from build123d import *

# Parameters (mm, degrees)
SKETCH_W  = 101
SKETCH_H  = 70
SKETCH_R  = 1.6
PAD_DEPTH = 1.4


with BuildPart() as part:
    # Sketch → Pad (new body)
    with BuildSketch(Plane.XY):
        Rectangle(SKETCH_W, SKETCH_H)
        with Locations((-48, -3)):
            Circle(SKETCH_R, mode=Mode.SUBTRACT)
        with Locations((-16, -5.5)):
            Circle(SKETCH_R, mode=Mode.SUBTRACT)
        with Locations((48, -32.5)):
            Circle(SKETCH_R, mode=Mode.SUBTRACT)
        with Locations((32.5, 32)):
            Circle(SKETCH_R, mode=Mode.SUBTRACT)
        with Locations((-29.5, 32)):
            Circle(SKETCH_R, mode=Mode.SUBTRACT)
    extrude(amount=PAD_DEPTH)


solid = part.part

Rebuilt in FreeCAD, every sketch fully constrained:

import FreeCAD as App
import Part
import Sketcher


def add_polygon(sketch, points):
    """Adds a closed chain of lines whose ends are joined by coincident constraints."""
    first, n = sketch.GeometryCount, len(points)
    for a, b in zip(points, points[1:] + points[:1]):
        sketch.addGeometry(Part.LineSegment(App.Vector(*a, 0), App.Vector(*b, 0)), False)
    for i in range(n):
        sketch.addConstraint(Sketcher.Constraint("Coincident", first + i, 2, first + (i + 1) % n, 1))

doc = App.newDocument("Part")
body = doc.addObject("PartDesign::Body", "Body")

# Sketch on XY plane
sketch1 = body.newObject("Sketcher::SketchObject", "Sketch")
sketch1.AttachmentSupport = (doc.getObject("XY_Plane"), [""])
sketch1.MapMode = "FlatFace"
add_polygon(sketch1, [(-50.5, 35), (-50.5, -35), (50.5, -35), (50.5, 35)])  # lines 0-3
sketch1.addGeometry(Part.Circle(App.Vector(-48, -3, 0), App.Vector(0, 0, 1), 1.6), False)  # 4
sketch1.addGeometry(Part.Circle(App.Vector(-16, -5.5, 0), App.Vector(0, 0, 1), 1.6), False)  # 5
sketch1.addGeometry(Part.Circle(App.Vector(48, -32.5, 0), App.Vector(0, 0, 1), 1.6), False)  # 6
sketch1.addGeometry(Part.Circle(App.Vector(-29.5, 32, 0), App.Vector(0, 0, 1), 1.6), False)  # 7
sketch1.addGeometry(Part.Circle(App.Vector(32.5, 32, 0), App.Vector(0, 0, 1), 1.6), False)  # 8
sketch1.addConstraint([
    Sketcher.Constraint("Vertical", 0),
    Sketcher.Constraint("Horizontal", 1),
    Sketcher.Constraint("Vertical", 2),
    Sketcher.Constraint("Horizontal", 3),
    Sketcher.Constraint("Equal", 4, 5),
    Sketcher.Constraint("Equal", 5, 6),
    Sketcher.Constraint("Equal", 6, 7),
    Sketcher.Constraint("Equal", 7, 8),
    Sketcher.Constraint("Symmetric", 0, 2, 2, 2, -1, 1),
    Sketcher.Constraint("Horizontal", 7, 3, 8, 3),
    Sketcher.Constraint("Diameter", 4, 3.2),
    Sketcher.Constraint("DistanceX", 1, 1, 1, 2, 101.0),
    Sketcher.Constraint("DistanceY", 0, 2, 0, 1, 70.0),
    Sketcher.Constraint("DistanceX", 4, 3, -1, 1, 48.0),
    Sketcher.Constraint("DistanceY", 4, 3, -1, 1, 3.0),
    Sketcher.Constraint("DistanceX", 5, 3, -1, 1, 16.0),
    Sketcher.Constraint("DistanceX", -1, 1, 6, 3, 48.0),
    Sketcher.Constraint("DistanceY", -1, 1, 7, 3, 32.0),
    Sketcher.Constraint("DistanceY", 6, 3, 5, 3, 27.0),
    Sketcher.Constraint("DistanceX", 7, 3, 8, 3, 62.0),
    Sketcher.Constraint("DistanceX", 0, 2, 7, 3, 21.0),
    Sketcher.Constraint("DistanceY", 5, 3, -1, 1, 5.5),
])
pad1 = body.newObject("PartDesign::Pad", "Pad")
pad1.Profile = sketch1
pad1.Length = 1.4

doc.recompute()
